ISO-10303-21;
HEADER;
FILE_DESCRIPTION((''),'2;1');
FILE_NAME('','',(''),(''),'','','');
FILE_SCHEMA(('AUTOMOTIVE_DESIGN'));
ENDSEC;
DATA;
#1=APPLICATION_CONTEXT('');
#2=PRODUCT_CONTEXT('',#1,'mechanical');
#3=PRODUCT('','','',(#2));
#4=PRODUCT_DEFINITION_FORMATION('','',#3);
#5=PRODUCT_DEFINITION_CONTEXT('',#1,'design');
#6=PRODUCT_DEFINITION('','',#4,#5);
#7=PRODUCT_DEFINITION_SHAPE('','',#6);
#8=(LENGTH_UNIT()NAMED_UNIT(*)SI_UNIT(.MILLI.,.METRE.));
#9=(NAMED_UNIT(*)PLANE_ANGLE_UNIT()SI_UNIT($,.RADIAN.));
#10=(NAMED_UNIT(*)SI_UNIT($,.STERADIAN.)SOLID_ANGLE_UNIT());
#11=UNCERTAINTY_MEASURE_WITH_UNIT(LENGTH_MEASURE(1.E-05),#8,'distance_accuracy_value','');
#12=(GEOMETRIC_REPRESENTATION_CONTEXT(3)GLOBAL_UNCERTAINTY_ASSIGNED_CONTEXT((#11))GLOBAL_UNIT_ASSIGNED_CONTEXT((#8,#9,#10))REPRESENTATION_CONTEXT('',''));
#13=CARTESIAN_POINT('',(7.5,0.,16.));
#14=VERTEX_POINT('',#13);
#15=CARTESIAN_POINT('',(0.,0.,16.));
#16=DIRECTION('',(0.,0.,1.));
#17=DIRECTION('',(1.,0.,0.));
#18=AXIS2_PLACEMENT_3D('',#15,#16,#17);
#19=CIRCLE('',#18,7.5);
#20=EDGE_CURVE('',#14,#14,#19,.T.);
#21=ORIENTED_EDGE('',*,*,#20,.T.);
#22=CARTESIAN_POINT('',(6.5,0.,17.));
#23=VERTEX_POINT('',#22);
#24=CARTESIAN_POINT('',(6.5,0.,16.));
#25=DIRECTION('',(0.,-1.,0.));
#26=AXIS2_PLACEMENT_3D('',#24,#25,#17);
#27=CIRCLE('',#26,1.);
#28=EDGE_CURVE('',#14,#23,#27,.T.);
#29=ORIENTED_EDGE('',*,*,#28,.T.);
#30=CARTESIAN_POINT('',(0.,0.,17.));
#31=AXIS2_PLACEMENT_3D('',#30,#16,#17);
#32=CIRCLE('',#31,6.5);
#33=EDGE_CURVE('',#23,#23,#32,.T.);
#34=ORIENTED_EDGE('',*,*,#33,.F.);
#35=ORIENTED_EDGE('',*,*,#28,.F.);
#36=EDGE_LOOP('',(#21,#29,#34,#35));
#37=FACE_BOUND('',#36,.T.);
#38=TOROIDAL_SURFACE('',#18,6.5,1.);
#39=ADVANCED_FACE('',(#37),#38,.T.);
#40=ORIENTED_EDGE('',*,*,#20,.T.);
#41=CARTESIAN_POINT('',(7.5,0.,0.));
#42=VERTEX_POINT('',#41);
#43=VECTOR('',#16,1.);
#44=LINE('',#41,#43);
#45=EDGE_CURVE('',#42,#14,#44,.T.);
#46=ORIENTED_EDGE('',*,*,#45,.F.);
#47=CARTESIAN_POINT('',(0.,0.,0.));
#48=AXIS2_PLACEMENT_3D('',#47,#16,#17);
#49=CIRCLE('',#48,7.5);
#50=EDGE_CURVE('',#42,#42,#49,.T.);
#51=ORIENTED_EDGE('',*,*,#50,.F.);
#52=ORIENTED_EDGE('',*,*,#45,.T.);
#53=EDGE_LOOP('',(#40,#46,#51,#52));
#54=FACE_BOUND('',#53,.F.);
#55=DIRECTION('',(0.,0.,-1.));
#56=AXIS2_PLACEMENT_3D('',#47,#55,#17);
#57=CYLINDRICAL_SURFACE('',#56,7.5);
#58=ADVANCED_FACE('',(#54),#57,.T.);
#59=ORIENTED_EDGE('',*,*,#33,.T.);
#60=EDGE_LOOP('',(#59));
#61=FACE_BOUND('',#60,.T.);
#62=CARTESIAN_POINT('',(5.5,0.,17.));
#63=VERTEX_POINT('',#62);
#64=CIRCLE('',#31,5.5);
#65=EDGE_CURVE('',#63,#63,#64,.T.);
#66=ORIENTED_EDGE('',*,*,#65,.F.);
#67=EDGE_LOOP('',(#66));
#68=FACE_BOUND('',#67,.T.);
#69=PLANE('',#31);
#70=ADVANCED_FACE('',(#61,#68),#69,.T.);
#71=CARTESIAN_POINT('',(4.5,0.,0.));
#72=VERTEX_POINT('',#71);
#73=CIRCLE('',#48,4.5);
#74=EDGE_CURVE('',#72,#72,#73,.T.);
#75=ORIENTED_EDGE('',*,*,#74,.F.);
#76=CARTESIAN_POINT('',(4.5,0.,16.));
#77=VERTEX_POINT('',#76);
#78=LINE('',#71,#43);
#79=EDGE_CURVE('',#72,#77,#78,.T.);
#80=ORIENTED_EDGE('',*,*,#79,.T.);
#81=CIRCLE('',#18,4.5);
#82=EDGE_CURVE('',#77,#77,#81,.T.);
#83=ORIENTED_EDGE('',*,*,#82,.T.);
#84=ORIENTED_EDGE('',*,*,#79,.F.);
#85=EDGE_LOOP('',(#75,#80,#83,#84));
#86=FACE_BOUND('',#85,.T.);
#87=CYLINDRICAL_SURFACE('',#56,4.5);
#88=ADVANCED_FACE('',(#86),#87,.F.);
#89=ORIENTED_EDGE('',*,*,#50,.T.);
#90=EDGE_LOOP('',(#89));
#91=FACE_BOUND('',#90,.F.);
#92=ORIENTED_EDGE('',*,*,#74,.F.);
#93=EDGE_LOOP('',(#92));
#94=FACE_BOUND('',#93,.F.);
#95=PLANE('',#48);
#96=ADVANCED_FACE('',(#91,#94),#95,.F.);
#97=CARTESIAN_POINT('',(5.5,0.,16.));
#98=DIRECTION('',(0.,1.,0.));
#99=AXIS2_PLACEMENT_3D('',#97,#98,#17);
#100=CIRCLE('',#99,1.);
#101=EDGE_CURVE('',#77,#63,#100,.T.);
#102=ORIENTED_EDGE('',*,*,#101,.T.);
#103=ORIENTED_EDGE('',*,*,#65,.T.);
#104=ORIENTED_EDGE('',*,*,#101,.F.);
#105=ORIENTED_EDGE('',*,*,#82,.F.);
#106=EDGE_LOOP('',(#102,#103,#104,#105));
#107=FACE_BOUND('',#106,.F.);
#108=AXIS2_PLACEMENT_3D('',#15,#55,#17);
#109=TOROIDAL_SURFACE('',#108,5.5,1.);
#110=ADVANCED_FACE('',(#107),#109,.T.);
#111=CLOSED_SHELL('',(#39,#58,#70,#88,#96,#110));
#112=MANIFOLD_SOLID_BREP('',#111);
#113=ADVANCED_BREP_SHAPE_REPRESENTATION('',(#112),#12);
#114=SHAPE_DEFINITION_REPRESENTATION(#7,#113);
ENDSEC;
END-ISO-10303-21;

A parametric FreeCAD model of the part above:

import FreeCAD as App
import Part
import Sketcher


def edges_at(feature, points):
    """Names of the edges that pass closest to the given points."""
    edges = feature.Shape.Edges
    near = lambda p: min(range(len(edges)), key=lambda i: edges[i].distToShape(Part.Vertex(*p))[0])
    return sorted({f"Edge{near(p) + 1}" for p in points})

doc = App.newDocument("Part")
body = doc.addObject("PartDesign::Body", "Body")

# Sketch on XY plane
sketch1 = doc.addObject("Sketcher::SketchObject", "Sketch")
body.addObject(sketch1)
sketch1.AttachmentSupport = (doc.XY_Plane, [""])
sketch1.MapMode = "FlatFace"
sketch1.addGeometry(Part.Circle(App.Vector(0, 0, 0), App.Vector(0, 0, 1), 7.5), False)
sketch1.addGeometry(Part.Circle(App.Vector(0, 0, 0), App.Vector(0, 0, 1), 4.5), False)
sketch1.addConstraint(Sketcher.Constraint("Coincident", 0, 3, -1, 1))
sketch1.addConstraint(Sketcher.Constraint("Coincident", 1, 3, -1, 1))
sketch1.addConstraint(Sketcher.Constraint("Diameter", 0, 15.0))
sketch1.addConstraint(Sketcher.Constraint("Diameter", 1, 9.0))
pad1 = doc.addObject("PartDesign::Pad", "Pad")
body.addObject(pad1)
pad1.Profile = sketch1
pad1.Length = 17
doc.recompute()

fillet = doc.addObject("PartDesign::Fillet", "Fillet")
body.addObject(fillet)
fillet.Base = (pad1, edges_at(pad1, [(-4.5, 0, 17), (-7.5, 0, 17)]))
fillet.Radius = 1

doc.recompute()
